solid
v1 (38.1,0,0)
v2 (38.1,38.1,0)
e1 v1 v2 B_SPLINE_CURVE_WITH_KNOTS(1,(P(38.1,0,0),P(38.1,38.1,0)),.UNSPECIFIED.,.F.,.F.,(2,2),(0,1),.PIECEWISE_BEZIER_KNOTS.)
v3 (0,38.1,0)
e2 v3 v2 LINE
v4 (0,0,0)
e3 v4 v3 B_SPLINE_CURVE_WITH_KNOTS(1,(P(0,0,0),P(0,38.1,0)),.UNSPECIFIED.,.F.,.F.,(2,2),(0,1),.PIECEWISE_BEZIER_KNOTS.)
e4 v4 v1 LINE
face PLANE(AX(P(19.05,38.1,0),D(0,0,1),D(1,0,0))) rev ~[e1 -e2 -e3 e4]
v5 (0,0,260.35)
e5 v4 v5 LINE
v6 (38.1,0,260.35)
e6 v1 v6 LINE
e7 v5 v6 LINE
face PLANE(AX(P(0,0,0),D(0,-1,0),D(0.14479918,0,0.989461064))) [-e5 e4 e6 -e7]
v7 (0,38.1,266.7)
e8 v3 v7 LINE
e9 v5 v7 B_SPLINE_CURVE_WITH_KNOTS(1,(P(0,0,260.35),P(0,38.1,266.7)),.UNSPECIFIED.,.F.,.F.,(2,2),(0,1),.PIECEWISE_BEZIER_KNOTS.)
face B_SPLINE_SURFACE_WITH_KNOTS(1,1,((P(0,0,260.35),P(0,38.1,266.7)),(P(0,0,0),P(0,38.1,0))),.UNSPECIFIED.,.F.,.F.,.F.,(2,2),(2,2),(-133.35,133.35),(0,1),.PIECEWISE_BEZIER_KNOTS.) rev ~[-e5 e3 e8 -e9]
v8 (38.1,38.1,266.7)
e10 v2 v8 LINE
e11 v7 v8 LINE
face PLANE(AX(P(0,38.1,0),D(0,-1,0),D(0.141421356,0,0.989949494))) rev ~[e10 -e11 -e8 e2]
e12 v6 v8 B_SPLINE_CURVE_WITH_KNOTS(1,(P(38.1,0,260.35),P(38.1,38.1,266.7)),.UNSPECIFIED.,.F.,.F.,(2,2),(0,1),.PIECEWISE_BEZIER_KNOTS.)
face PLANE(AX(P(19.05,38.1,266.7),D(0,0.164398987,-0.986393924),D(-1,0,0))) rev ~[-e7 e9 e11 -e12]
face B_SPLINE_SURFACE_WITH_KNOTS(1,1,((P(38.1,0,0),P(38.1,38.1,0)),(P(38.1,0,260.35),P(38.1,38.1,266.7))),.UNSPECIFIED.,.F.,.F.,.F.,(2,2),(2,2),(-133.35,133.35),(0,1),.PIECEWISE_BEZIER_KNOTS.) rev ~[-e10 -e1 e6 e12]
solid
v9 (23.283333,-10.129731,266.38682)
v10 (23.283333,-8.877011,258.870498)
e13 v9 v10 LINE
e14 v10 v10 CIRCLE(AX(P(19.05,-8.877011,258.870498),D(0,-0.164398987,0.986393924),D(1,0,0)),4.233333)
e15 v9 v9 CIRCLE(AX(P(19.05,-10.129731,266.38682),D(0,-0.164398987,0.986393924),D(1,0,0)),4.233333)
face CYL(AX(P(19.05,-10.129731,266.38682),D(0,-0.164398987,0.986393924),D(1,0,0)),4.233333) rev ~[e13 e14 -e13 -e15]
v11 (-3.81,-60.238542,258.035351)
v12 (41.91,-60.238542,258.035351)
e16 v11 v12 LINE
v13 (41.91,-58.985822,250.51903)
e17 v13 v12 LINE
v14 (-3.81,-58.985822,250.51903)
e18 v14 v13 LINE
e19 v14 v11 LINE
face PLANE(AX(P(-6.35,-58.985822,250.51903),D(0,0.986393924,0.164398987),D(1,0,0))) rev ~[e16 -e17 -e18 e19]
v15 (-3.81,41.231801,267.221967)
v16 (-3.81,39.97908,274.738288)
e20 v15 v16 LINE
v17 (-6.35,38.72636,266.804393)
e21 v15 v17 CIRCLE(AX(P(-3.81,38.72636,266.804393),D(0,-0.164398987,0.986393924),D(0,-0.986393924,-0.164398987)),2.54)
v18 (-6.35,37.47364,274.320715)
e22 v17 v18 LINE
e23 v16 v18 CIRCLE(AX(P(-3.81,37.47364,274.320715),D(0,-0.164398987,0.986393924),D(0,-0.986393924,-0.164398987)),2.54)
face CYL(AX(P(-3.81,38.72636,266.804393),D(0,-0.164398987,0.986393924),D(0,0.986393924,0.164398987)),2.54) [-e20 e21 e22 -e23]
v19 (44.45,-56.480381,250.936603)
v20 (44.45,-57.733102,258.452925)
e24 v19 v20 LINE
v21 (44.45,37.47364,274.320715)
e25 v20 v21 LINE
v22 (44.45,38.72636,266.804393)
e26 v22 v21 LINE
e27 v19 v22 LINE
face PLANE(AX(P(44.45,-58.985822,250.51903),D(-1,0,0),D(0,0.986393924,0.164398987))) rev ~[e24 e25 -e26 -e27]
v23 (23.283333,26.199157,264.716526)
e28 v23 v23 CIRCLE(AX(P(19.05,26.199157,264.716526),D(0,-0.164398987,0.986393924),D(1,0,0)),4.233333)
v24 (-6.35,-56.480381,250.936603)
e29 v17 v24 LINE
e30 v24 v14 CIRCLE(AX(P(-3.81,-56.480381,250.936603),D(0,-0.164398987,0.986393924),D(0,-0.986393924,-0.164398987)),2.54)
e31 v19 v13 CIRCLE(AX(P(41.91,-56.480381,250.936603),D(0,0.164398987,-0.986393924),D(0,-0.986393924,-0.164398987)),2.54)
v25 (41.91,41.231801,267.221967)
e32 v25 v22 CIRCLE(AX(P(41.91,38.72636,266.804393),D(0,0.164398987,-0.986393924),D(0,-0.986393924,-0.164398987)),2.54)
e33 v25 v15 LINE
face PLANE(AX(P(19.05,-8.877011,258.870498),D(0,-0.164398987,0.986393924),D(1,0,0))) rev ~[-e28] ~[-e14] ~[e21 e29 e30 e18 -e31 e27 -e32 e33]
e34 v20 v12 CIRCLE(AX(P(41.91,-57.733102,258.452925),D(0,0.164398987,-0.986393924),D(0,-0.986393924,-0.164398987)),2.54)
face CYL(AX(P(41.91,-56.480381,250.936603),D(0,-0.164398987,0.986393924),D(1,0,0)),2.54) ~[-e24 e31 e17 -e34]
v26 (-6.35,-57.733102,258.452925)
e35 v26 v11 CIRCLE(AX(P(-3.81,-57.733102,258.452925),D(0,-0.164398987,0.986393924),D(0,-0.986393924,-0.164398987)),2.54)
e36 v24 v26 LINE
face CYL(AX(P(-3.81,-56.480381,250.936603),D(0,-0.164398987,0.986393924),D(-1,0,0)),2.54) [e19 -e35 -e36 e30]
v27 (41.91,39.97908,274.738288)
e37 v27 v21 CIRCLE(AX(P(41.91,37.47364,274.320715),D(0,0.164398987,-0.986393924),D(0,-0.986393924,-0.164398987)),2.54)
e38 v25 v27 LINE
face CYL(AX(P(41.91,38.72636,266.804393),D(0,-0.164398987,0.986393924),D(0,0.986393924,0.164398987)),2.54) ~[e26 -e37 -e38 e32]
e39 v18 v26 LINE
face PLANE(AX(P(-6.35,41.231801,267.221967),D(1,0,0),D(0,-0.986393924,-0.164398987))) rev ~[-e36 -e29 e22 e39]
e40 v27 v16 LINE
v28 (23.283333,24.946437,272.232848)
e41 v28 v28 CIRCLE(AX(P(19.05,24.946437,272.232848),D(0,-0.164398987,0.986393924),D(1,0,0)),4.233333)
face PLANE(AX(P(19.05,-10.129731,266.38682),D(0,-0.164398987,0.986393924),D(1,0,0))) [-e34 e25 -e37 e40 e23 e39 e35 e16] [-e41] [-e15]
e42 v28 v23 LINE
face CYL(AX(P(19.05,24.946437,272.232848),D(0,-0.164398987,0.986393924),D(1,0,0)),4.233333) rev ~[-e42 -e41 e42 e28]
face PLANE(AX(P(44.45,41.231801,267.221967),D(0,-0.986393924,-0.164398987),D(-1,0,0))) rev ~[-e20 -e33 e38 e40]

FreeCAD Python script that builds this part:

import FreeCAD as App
import Part
import Sketcher
from FreeCAD import Vector
Q = App.Units.Quantity


def edges_at(feature, points):
    """Names of the edges that pass closest to the given points."""
    edges = feature.Shape.Edges
    near = lambda p: min(range(len(edges)), key=lambda i: edges[i].distToShape(Part.Vertex(*p))[0])
    return sorted({f"Edge{near(p) + 1}" for p in points})

doc = App.newDocument("Part")
body = doc.addObject("PartDesign::Body", "Body")

# Sketch on XZ plane
sketch1 = body.newObject("Sketcher::SketchObject", "Sketch")
sketch1.AttachmentSupport = (doc.getObject("XZ_Plane"), [""])
sketch1.MapMode = "FlatFace"
sketch1.addGeometry([
    Part.LineSegment(Vector(0, 260.35, 0), Vector(0, 0, 0)),
    Part.LineSegment(Vector(0, 0, 0), Vector(38.1, 0, 0)),
    Part.LineSegment(Vector(38.1, 0, 0), Vector(38.1, 260.35, 0)),
    Part.LineSegment(Vector(38.1, 260.35, 0), Vector(0, 260.35, 0)),
], False)
sketch1.addConstraint([
    Sketcher.Constraint("Coincident", 0, 2, 1, 1),
    Sketcher.Constraint("Coincident", 1, 2, 2, 1),
    Sketcher.Constraint("Coincident", 2, 2, 3, 1),
    Sketcher.Constraint("Coincident", 3, 2, 0, 1),
    Sketcher.Constraint("Vertical", 0),
    Sketcher.Constraint("Horizontal", 1),
    Sketcher.Constraint("Vertical", 2),
    Sketcher.Constraint("Horizontal", 3),
    Sketcher.Constraint("Coincident", 0, 2, -1, 1),
    Sketcher.Constraint("DistanceX", 1, 1, 1, 2, Q("1.5 in")),
    Sketcher.Constraint("DistanceY", 0, 2, 0, 1, Q("10.25 in")),
])

# Sketch on XZ plane
sketch2 = body.newObject("Sketcher::SketchObject", "Sketch001")
sketch2.AttachmentSupport = (doc.getObject("XZ_Plane"), [""])
sketch2.MapMode = "FlatFace"
sketch2.AttachmentOffset = App.Placement(Vector(0, 0, -1.5 * 25.4), App.Rotation())
sketch2.addGeometry([
    Part.LineSegment(Vector(0, 266.7, 0), Vector(0, 0, 0)),
    Part.LineSegment(Vector(0, 0, 0), Vector(38.1, 0, 0)),
    Part.LineSegment(Vector(38.1, 0, 0), Vector(38.1, 266.7, 0)),
    Part.LineSegment(Vector(38.1, 266.7, 0), Vector(0, 266.7, 0)),
], False)
sketch2.addConstraint([
    Sketcher.Constraint("Coincident", 0, 2, 1, 1),
    Sketcher.Constraint("Coincident", 1, 2, 2, 1),
    Sketcher.Constraint("Coincident", 2, 2, 3, 1),
    Sketcher.Constraint("Coincident", 3, 2, 0, 1),
    Sketcher.Constraint("Vertical", 0),
    Sketcher.Constraint("Horizontal", 1),
    Sketcher.Constraint("Vertical", 2),
    Sketcher.Constraint("Horizontal", 3),
    Sketcher.Constraint("Coincident", 0, 2, -1, 1),
    Sketcher.Constraint("DistanceX", 1, 1, 1, 2, Q("1.5 in")),
    Sketcher.Constraint("DistanceY", 0, 2, 0, 1, Q("10.5 in")),
])

additiveloft = body.newObject("PartDesign::AdditiveLoft", "AdditiveLoft")
additiveloft.Profile = sketch1
additiveloft.Sections = [sketch2]
body2 = doc.addObject("PartDesign::Body", "Body001")

# Sketch on an angled plane
sketch3 = body2.newObject("Sketcher::SketchObject", "Sketch002")
sketch3.Placement = App.Placement(Vector(0, -42.218919, 253.313514), App.Rotation(Vector(1, 0, 0), Vector(0, 0.986393924, 0.164398987), Vector(0, -0.164398987, 0.986393924), "ZXY"))
sketch3.addGeometry([
    Part.LineSegment(Vector(44.45, 84.601818, 0), Vector(-6.35, 84.601818, 0)),
    Part.LineSegment(Vector(-6.35, 84.601818, 0), Vector(-6.35, -16.998182, 0)),
    Part.LineSegment(Vector(-6.35, -16.998182, 0), Vector(44.45, -16.998182, 0)),
    Part.LineSegment(Vector(44.45, -16.998182, 0), Vector(44.45, 84.601818, 0)),
], False)
sketch3.addConstraint([
    Sketcher.Constraint("Coincident", 0, 2, 1, 1),
    Sketcher.Constraint("Coincident", 1, 2, 2, 1),
    Sketcher.Constraint("Coincident", 2, 2, 3, 1),
    Sketcher.Constraint("Coincident", 3, 2, 0, 1),
    Sketcher.Constraint("Horizontal", 0),
    Sketcher.Constraint("Vertical", 1),
    Sketcher.Constraint("Horizontal", 2),
    Sketcher.Constraint("Vertical", 3),
    Sketcher.Constraint("DistanceX", 0, 2, 0, 1, Q("2 in")),
    Sketcher.Constraint("DistanceY", 1, 2, 1, 1, Q("4 in")),
    Sketcher.Constraint("DistanceX", 0, 2, -1, 1, Q("0.25 in")),
    Sketcher.Constraint("DistanceY", -1, 1, 0, 2, Q("84.601818 mm")),
])
pad1 = body2.newObject("PartDesign::Pad", "Pad")
pad1.Profile = sketch3
pad1.Length = Q("0.3 in")

# Sketch on an angled plane
sketch4 = body2.newObject("Sketcher::SketchObject", "Sketch003")
sketch4.Placement = App.Placement(Vector(0, -43.471639, 260.829835), App.Rotation(Vector(1, 0, 0), Vector(0, 0.986393924, 0.164398987), Vector(0, -0.164398987, 0.986393924), "ZXY"))
sketch4.addGeometry([
    Part.Circle(Vector(19.05, 33.801818, 0), Vector(0, 0, 1), 4.233333),
    Part.Circle(Vector(19.05, 69.361818, 0), Vector(0, 0, 1), 4.233333),
], False)
sketch4.addConstraint([
    Sketcher.Constraint("Equal", 0, 1),
    Sketcher.Constraint("Vertical", 0, 3, 1, 3),
    Sketcher.Constraint("DistanceY", 0, 3, 1, 3, Q("1.4 in")),
    Sketcher.Constraint("DistanceX", -1, 1, 0, 3, Q("0.75 in")),
    Sketcher.Constraint("Diameter", 0, Q("8.466667 mm")),
    Sketcher.Constraint("DistanceY", -1, 1, 0, 3, Q("33.801818 mm")),
])
pocket1 = body2.newObject("PartDesign::Pocket", "Pocket")
pocket1.Profile = sketch4
pocket1.Length = Q("0.3 in")
doc.recompute()

fillet = body2.newObject("PartDesign::Fillet", "Fillet")
fillet.Base = (pocket1, edges_at(pocket1, [
    (44.45, -59.612, 254.277),
    (-6.35, -59.612, 254.277),
    (-6.35, 40.605, 270.98),
    (44.45, 40.605, 270.98),
]))
fillet.Radius = Q("0.1 in")

doc.recompute()
